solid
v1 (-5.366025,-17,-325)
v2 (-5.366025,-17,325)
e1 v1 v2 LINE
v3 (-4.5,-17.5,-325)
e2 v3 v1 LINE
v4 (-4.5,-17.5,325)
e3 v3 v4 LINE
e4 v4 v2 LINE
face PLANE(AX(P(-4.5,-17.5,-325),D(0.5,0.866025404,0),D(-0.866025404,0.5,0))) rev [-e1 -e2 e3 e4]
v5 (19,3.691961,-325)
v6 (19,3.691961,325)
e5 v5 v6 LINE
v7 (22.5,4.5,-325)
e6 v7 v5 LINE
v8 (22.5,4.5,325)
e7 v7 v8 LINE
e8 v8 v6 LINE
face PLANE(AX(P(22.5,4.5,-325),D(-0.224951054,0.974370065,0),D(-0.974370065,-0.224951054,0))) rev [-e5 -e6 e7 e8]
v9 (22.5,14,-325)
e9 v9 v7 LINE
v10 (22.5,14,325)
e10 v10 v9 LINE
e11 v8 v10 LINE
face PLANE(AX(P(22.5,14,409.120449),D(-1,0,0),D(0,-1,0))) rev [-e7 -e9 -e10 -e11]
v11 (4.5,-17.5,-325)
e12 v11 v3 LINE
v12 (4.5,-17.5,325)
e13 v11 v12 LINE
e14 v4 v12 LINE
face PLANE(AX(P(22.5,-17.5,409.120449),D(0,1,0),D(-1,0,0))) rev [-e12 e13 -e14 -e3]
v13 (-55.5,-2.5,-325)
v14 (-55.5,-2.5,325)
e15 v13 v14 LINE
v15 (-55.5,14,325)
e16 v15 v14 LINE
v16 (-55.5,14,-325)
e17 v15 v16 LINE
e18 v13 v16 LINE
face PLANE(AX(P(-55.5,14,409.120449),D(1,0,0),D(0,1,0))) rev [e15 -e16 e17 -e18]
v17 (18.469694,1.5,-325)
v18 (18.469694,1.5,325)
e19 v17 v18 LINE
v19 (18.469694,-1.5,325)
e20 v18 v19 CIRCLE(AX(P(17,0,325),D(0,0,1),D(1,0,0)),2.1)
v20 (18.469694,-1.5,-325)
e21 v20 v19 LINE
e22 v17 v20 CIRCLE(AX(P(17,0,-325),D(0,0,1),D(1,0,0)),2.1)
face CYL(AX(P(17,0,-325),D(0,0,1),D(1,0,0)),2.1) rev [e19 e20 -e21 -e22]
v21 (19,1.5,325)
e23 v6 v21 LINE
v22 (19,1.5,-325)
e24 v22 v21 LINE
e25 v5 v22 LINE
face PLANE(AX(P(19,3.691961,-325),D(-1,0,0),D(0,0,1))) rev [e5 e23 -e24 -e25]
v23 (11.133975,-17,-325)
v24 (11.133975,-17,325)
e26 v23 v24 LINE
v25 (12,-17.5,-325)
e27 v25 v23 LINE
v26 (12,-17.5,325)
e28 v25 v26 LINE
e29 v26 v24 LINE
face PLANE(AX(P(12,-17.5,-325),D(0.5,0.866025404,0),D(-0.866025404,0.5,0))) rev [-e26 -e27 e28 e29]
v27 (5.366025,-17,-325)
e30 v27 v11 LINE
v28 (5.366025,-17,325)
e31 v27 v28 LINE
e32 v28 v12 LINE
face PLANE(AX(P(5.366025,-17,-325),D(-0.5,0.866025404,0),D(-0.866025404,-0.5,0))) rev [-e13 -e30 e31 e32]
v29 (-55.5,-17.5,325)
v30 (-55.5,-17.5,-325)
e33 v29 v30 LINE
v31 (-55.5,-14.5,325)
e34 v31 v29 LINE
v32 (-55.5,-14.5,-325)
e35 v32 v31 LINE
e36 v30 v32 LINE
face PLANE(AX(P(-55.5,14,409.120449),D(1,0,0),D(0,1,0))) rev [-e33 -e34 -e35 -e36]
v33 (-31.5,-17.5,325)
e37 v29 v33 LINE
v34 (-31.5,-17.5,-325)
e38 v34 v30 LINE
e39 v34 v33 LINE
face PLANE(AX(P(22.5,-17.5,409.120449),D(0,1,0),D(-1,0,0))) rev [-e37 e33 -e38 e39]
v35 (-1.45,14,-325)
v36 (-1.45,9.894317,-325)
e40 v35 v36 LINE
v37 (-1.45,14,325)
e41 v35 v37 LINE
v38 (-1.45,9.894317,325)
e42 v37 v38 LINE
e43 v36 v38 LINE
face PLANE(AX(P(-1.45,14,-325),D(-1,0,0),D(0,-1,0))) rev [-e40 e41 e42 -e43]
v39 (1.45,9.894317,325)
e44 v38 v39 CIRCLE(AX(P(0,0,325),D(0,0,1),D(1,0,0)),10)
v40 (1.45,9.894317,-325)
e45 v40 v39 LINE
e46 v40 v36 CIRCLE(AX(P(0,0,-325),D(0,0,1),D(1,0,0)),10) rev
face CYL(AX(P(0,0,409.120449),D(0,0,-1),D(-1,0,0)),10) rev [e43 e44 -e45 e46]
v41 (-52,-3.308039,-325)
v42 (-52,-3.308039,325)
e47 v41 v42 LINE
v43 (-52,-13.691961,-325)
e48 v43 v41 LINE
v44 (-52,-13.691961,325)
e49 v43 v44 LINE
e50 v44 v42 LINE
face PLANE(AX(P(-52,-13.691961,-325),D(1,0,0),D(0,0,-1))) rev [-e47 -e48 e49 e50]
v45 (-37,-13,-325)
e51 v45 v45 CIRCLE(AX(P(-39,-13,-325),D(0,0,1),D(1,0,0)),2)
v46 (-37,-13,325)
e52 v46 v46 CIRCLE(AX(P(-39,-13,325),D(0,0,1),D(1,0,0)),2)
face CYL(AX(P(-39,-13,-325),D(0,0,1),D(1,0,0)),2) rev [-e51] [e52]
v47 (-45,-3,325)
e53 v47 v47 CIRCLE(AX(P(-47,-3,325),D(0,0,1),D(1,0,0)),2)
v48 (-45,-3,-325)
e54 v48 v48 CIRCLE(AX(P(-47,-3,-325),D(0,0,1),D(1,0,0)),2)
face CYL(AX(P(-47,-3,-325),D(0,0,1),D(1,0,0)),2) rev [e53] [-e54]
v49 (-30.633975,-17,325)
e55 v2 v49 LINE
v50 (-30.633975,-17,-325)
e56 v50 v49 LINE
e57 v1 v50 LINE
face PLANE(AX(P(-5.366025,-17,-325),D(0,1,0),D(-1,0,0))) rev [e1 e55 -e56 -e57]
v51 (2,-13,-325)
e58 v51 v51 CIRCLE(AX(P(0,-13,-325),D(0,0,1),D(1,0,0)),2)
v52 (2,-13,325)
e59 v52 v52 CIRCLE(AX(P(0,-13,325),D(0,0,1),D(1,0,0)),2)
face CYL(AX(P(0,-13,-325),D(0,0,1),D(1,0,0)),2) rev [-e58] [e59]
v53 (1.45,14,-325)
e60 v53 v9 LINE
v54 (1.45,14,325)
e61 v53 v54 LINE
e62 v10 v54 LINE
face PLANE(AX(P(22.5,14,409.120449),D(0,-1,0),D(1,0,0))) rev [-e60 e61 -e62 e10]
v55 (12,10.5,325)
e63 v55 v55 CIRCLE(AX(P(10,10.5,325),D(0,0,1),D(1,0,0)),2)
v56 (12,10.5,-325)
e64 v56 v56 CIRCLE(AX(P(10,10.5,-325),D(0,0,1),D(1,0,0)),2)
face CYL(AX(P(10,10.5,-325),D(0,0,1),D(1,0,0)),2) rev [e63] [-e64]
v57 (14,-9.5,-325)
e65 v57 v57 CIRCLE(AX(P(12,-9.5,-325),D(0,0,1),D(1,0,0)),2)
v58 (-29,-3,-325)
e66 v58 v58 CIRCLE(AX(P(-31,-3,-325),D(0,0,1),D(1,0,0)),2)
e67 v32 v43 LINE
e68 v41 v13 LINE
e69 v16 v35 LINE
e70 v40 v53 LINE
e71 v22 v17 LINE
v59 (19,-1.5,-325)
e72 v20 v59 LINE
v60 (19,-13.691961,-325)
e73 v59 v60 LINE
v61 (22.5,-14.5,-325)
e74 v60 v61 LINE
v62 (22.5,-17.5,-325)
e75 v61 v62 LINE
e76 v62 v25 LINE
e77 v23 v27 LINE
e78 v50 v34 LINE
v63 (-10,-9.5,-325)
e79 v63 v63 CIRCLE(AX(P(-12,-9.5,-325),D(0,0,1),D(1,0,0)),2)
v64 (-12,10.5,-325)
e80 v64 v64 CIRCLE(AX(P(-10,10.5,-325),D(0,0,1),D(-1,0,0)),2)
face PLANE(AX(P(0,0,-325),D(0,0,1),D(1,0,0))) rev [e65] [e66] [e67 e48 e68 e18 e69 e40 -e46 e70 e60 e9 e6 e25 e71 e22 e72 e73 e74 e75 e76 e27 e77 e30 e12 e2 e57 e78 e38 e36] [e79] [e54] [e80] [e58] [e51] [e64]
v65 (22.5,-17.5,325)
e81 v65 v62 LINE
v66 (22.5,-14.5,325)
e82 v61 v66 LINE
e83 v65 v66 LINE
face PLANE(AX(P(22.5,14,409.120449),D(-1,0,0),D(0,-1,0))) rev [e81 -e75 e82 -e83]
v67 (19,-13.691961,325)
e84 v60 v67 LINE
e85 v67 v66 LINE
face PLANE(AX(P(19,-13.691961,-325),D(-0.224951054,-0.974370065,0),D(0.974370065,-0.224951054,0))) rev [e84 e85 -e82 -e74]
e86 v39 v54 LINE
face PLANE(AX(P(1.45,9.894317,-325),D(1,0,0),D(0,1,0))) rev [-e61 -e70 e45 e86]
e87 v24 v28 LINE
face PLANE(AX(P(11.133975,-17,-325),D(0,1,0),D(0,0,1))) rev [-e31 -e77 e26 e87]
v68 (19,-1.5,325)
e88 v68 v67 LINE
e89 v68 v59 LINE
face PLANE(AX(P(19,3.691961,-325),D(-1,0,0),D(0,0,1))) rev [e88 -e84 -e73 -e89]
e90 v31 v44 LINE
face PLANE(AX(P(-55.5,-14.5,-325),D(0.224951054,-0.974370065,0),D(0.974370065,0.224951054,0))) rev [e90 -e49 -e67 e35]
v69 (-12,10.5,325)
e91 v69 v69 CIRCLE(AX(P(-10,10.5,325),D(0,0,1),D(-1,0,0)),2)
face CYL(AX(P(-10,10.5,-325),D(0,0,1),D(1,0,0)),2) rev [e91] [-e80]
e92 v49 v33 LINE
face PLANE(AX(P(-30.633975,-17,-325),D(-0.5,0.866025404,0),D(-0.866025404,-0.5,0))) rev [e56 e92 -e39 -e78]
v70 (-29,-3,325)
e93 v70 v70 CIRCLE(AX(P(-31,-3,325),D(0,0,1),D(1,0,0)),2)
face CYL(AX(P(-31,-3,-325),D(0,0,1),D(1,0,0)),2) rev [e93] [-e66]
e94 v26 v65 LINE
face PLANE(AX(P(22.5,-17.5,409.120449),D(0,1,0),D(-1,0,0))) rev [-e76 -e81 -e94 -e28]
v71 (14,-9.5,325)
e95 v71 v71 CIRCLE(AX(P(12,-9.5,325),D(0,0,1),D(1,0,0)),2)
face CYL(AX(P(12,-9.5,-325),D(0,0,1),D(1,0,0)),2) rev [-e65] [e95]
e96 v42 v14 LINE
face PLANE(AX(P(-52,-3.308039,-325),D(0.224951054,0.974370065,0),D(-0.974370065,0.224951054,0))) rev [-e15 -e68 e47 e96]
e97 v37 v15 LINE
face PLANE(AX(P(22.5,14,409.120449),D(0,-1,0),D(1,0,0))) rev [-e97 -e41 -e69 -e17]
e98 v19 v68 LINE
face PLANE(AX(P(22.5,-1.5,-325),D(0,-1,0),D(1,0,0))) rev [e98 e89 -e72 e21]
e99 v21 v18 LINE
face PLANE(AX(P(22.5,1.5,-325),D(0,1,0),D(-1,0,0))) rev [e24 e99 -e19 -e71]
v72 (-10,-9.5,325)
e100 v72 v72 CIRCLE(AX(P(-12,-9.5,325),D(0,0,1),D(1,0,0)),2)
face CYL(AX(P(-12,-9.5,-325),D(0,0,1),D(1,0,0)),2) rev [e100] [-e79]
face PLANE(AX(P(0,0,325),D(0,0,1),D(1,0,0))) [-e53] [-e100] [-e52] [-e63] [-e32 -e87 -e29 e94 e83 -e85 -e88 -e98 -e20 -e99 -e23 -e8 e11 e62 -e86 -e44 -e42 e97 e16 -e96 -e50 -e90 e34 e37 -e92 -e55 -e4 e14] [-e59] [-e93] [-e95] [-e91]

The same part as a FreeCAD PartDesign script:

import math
import FreeCAD as App
import Part
import Sketcher
from FreeCAD import Vector
Q = App.Units.Quantity


def add_polygon(sketch, points):
    """Adds a closed chain of lines whose ends are joined by coincident constraints."""
    first, n = sketch.GeometryCount, len(points)
    for a, b in zip(points, points[1:] + points[:1]):
        sketch.addGeometry(Part.LineSegment(App.Vector(*a, 0), App.Vector(*b, 0)), False)
    for i in range(n):
        sketch.addConstraint(Sketcher.Constraint("Coincident", first + i, 2, first + (i + 1) % n, 1))

doc = App.newDocument("Part")
body = doc.addObject("PartDesign::Body", "Body")

sketch1 = body.newObject("Sketcher::SketchObject", "Sketch")
sketch1.AttachmentSupport = (doc.getObject("XY_Plane"), [""])
sketch1.MapMode = "FlatFace"
add_polygon(sketch1, [(-56, 14), (-56, -18), (22, -18), (22, 14)])
sketch1.addGeometry(Part.Circle(Vector(0, 0, 0), Vector(0, 0, 1), 10), False)
sketch1.addConstraint(Sketcher.Constraint("Vertical", 0))
sketch1.addConstraint(Sketcher.Constraint("Horizontal", 1))
sketch1.addConstraint(Sketcher.Constraint("Vertical", 2))
sketch1.addConstraint(Sketcher.Constraint("Horizontal", 3))
sketch1.addConstraint(Sketcher.Constraint("Coincident", 4, 3, -1, 1))
sketch1.addConstraint(Sketcher.Constraint("Diameter", 4, Q("20 mm")))
sketch1.addConstraint(Sketcher.Constraint("DistanceX", 1, 1, 1, 2, Q("78 mm")))
sketch1.addConstraint(Sketcher.Constraint("DistanceY", 0, 2, 0, 1, Q("31.5 mm")))
sketch1.addConstraint(Sketcher.Constraint("DistanceY", -1, 1, 2, 2, Q("14 mm")))
sketch1.addConstraint(Sketcher.Constraint("DistanceX", 0, 2, -1, 1, Q("55.5 mm")))
pad1 = body.newObject("PartDesign::Pad", "Pad")
pad1.Profile = sketch1
pad1.Type = "TwoLengths"
pad1.Length = 325
pad1.Length2 = 325

sketch2 = body.newObject("Sketcher::SketchObject", "Sketch001")
sketch2.AttachmentSupport = (doc.getObject("XY_Plane"), [""])
sketch2.MapMode = "FlatFace"
add_polygon(sketch2, [(12, -17.5), (11.1, -17), (5.4, -17), (4.5, -17.5)])
add_polygon(sketch2, [(-4.5, -17.5), (-5.4, -17), (-30.6, -17), (-31.5, -17.5)])
sketch2.addConstraint(Sketcher.Constraint("Horizontal", 1))
sketch2.addConstraint(Sketcher.Constraint("Horizontal", 3))
sketch2.addConstraint(Sketcher.Constraint("Horizontal", 5))
sketch2.addConstraint(Sketcher.Constraint("Horizontal", 7))
sketch2.addConstraint(Sketcher.Constraint("Symmetric", 1, 2, 4, 2, -2))
sketch2.addConstraint(Sketcher.Constraint("Symmetric", 2, 2, 7, 2, -2))
sketch2.addConstraint(Sketcher.Constraint("Parallel", 0, 4))
sketch2.addConstraint(Sketcher.Constraint("Parallel", 2, 6))
sketch2.addConstraint(Sketcher.Constraint("DistanceX", 7, 1, 7, 2, Q("27 mm")))
sketch2.addConstraint(Sketcher.Constraint("Angle", 0, Q("150 deg")))
sketch2.addConstraint(Sketcher.Constraint("Distance", 0, Q("1 mm")))
sketch2.addConstraint(Sketcher.Constraint("DistanceX", 3, 1, 3, 2, Q("7.5 mm")))
sketch2.addConstraint(Sketcher.Constraint("DistanceY", 0, 2, -1, 1, Q("17 mm")))
sketch2.addConstraint(Sketcher.Constraint("DistanceX", -1, 1, 3, 2, Q("12 mm")))
pocket1 = body.newObject("PartDesign::Pocket", "Pocket")
pocket1.Profile = sketch2
pocket1.Type = "ThroughAll"
pocket1.Midplane = True

sketch3 = body.newObject("Sketcher::SketchObject", "Sketch002")
sketch3.AttachmentSupport = (doc.getObject("XY_Plane"), [""])
sketch3.MapMode = "FlatFace"
sketch3.addGeometry(Part.LineSegment(Vector(-1.4, 14, 0), Vector(-1.4, 9.9, 0)), False)
sketch3.addGeometry(Part.ArcOfCircle(Part.Circle(Vector(0, 0, 0), Vector(0, 0, 1), 10), math.radians(81.66), math.radians(98.34)), False)
sketch3.addGeometry(Part.LineSegment(Vector(1.4, 9.9, 0), Vector(1.4, 14, 0)), False)
sketch3.addGeometry(Part.LineSegment(Vector(1.4, 14, 0), Vector(-1.4, 14, 0)), False)
sketch3.addConstraint(Sketcher.Constraint("Coincident", 0, 2, 1, 2))
sketch3.addConstraint(Sketcher.Constraint("Coincident", 1, 1, 2, 1))
sketch3.addConstraint(Sketcher.Constraint("Coincident", 2, 2, 3, 1))
sketch3.addConstraint(Sketcher.Constraint("Coincident", 3, 2, 0, 1))
sketch3.addConstraint(Sketcher.Constraint("Vertical", 0))
sketch3.addConstraint(Sketcher.Constraint("Vertical", 2))
sketch3.addConstraint(Sketcher.Constraint("Horizontal", 3))
sketch3.addConstraint(Sketcher.Constraint("Coincident", 1, 3, -1, 1))
sketch3.addConstraint(Sketcher.Constraint("Horizontal", 0, 2, 1, 1))
sketch3.addConstraint(Sketcher.Constraint("Radius", 1, Q("10 mm")))
sketch3.addConstraint(Sketcher.Constraint("DistanceX", 3, 2, 3, 1, Q("2.9 mm")))
sketch3.addConstraint(Sketcher.Constraint("DistanceY", -1, 1, 2, 2, Q("14 mm")))
pocket2 = body.newObject("PartDesign::Pocket", "Pocket001")
pocket2.Profile = sketch3
pocket2.Type = "ThroughAll"
pocket2.Midplane = True

sketch4 = body.newObject("Sketcher::SketchObject", "Sketch003")
sketch4.AttachmentSupport = (doc.getObject("XY_Plane"), [""])
sketch4.MapMode = "FlatFace"
sketch4.addGeometry(Part.Circle(Vector(12, -9.5, 0), Vector(0, 0, 1), 2), False)
sketch4.addGeometry(Part.Circle(Vector(-12, -9.5, 0), Vector(0, 0, 1), 2), False)
sketch4.addGeometry(Part.Circle(Vector(10, 10.5, 0), Vector(0, 0, 1), 2), False)
sketch4.addGeometry(Part.Circle(Vector(-10, 10.5, 0), Vector(0, 0, 1), 2), False)
sketch4.addGeometry(Part.Circle(Vector(0, -13, 0), Vector(0, 0, 1), 2), False)
sketch4.addGeometry(Part.Circle(Vector(-31, -3, 0), Vector(0, 0, 1), 2), False)
sketch4.addGeometry(Part.Circle(Vector(-47, -3, 0), Vector(0, 0, 1), 2), False)
sketch4.addGeometry(Part.Circle(Vector(-39, -13, 0), Vector(0, 0, 1), 2), False)
sketch4.addConstraint(Sketcher.Constraint("Equal", 0, 1))
sketch4.addConstraint(Sketcher.Constraint("Equal", 1, 2))
sketch4.addConstraint(Sketcher.Constraint("Equal", 2, 3))
sketch4.addConstraint(Sketcher.Constraint("Equal", 3, 4))
sketch4.addConstraint(Sketcher.Constraint("Equal", 4, 5))
sketch4.addConstraint(Sketcher.Constraint("Equal", 5, 6))
sketch4.addConstraint(Sketcher.Constraint("Equal", 6, 7))
sketch4.addConstraint(Sketcher.Constraint("Symmetric", 0, 3, 1, 3, -2))
sketch4.addConstraint(Sketcher.Constraint("Symmetric", 2, 3, 3, 3, -2))
sketch4.addConstraint(Sketcher.Constraint("PointOnObject", 4, 3, -2))
sketch4.addConstraint(Sketcher.Constraint("Horizontal", 5, 3, 6, 3))
sketch4.addConstraint(Sketcher.Constraint("Horizontal", 4, 3, 7, 3))
sketch4.addConstraint(Sketcher.Constraint("Diameter", 0, Q("4 mm")))
sketch4.addConstraint(Sketcher.Constraint("DistanceX", -1, 1, 0, 3, Q("12 mm")))
sketch4.addConstraint(Sketcher.Constraint("DistanceX", -1, 1, 2, 3, Q("10 mm")))
sketch4.addConstraint(Sketcher.Constraint("DistanceY", 4, 3, -1, 1, Q("13 mm")))
sketch4.addConstraint(Sketcher.Constraint("DistanceX", 5, 3, -1, 1, Q("31 mm")))
sketch4.addConstraint(Sketcher.Constraint("DistanceY", 5, 3, -1, 1, Q("3 mm")))
sketch4.addConstraint(Sketcher.Constraint("DistanceX", 6, 3, -1, 1, Q("47 mm")))
sketch4.addConstraint(Sketcher.Constraint("DistanceX", 7, 3, -1, 1, Q("39 mm")))
sketch4.addConstraint(Sketcher.Constraint("DistanceY", 0, 3, 2, 3, Q("20 mm")))
sketch4.addConstraint(Sketcher.Constraint("DistanceY", 0, 3, -1, 1, Q("9.5 mm")))
pocket3 = body.newObject("PartDesign::Pocket", "Pocket002")
pocket3.Profile = sketch4
pocket3.Type = "ThroughAll"
pocket3.Midplane = True

sketch5 = body.newObject("Sketcher::SketchObject", "Sketch004")
sketch5.AttachmentSupport = (doc.getObject("XY_Plane"), [""])
sketch5.MapMode = "FlatFace"
sketch5.addGeometry(Part.LineSegment(Vector(22.5, 1.5, 0), Vector(18.5, 1.5, 0)), False)
sketch5.addGeometry(Part.ArcOfCircle(Part.Circle(Vector(17, 0, 0), Vector(0, 0, 1), 2.1), math.radians(46), math.radians(314)), False)
sketch5.addGeometry(Part.LineSegment(Vector(18.5, -1.5, 0), Vector(22.5, -1.5, 0)), False)
sketch5.addGeometry(Part.LineSegment(Vector(22.5, -1.5, 0), Vector(22.5, 1.5, 0)), False)
sketch5.addConstraint(Sketcher.Constraint("Coincident", 0, 2, 1, 1))
sketch5.addConstraint(Sketcher.Constraint("Coincident", 1, 2, 2, 1))
sketch5.addConstraint(Sketcher.Constraint("Coincident", 2, 2, 3, 1))
sketch5.addConstraint(Sketcher.Constraint("Coincident", 3, 2, 0, 1))
sketch5.addConstraint(Sketcher.Constraint("Horizontal", 0))
sketch5.addConstraint(Sketcher.Constraint("Horizontal", 2))
sketch5.addConstraint(Sketcher.Constraint("Vertical", 3))
sketch5.addConstraint(Sketcher.Constraint("Symmetric", 0, 2, 1, 2, -1))
sketch5.addConstraint(Sketcher.Constraint("Radius", 1, Q("2.1 mm")))
sketch5.addConstraint(Sketcher.Constraint("DistanceY", 3, 1, 3, 2, Q("3 mm")))
sketch5.addConstraint(Sketcher.Constraint("DistanceX", -1, 1, 1, 3, Q("17 mm")))
sketch5.addConstraint(Sketcher.Constraint("DistanceX", -1, 1, 2, 2, Q("22.5 mm")))
pocket4 = body.newObject("PartDesign::Pocket", "Pocket003")
pocket4.Profile = sketch5
pocket4.Type = "ThroughAll"
pocket4.Midplane = True

sketch6 = body.newObject("Sketcher::SketchObject", "Sketch005")
sketch6.AttachmentSupport = (doc.getObject("XY_Plane"), [""])
sketch6.MapMode = "FlatFace"
add_polygon(sketch6, [(-55.5, -14.5), (-52, -13.7), (-52, -3.3), (-55.5, -2.5)])
sketch6.addConstraint(Sketcher.Constraint("Vertical", 1))
sketch6.addConstraint(Sketcher.Constraint("Vertical", 3))
sketch6.addConstraint(Sketcher.Constraint("Equal", 0, 2))
sketch6.addConstraint(Sketcher.Constraint("DistanceY", 3, 2, 3, 1, Q("12 mm")))
sketch6.addConstraint(Sketcher.Constraint("Angle", 0, Q("13 deg")))
sketch6.addConstraint(Sketcher.Constraint("DistanceX", 0, 2, -1, 1, Q("52 mm")))
sketch6.addConstraint(Sketcher.Constraint("DistanceX", 2, 2, -1, 1, Q("55.5 mm")))
sketch6.addConstraint(Sketcher.Constraint("DistanceY", 2, 2, -1, 1, Q("2.5 mm")))
pocket5 = body.newObject("PartDesign::Pocket", "Pocket004")
pocket5.Profile = sketch6
pocket5.Type = "ThroughAll"
pocket5.Midplane = True

sketch7 = body.newObject("Sketcher::SketchObject", "Sketch006")
sketch7.AttachmentSupport = (doc.getObject("XY_Plane"), [""])
sketch7.MapMode = "FlatFace"
add_polygon(sketch7, [(22.5, 4.5), (19, 3.7), (19, -13.7), (22.5, -14.5)])
sketch7.addConstraint(Sketcher.Constraint("Vertical", 1))
sketch7.addConstraint(Sketcher.Constraint("Vertical", 3))
sketch7.addConstraint(Sketcher.Constraint("Equal", 0, 2))
sketch7.addConstraint(Sketcher.Constraint("DistanceY", 3, 1, 3, 2, Q("19 mm")))
sketch7.addConstraint(Sketcher.Constraint("Angle", 0, Q("-167 deg")))
sketch7.addConstraint(Sketcher.Constraint("DistanceX", -1, 1, 0, 2, Q("19 mm")))
sketch7.addConstraint(Sketcher.Constraint("DistanceX", -1, 1, 2, 2, Q("22.5 mm")))
sketch7.addConstraint(Sketcher.Constraint("DistanceY", 2, 2, -1, 1, Q("14.5 mm")))
pocket6 = body.newObject("PartDesign::Pocket", "Pocket005")
pocket6.Profile = sketch7
pocket6.Type = "ThroughAll"
pocket6.Midplane = True

doc.recompute()
